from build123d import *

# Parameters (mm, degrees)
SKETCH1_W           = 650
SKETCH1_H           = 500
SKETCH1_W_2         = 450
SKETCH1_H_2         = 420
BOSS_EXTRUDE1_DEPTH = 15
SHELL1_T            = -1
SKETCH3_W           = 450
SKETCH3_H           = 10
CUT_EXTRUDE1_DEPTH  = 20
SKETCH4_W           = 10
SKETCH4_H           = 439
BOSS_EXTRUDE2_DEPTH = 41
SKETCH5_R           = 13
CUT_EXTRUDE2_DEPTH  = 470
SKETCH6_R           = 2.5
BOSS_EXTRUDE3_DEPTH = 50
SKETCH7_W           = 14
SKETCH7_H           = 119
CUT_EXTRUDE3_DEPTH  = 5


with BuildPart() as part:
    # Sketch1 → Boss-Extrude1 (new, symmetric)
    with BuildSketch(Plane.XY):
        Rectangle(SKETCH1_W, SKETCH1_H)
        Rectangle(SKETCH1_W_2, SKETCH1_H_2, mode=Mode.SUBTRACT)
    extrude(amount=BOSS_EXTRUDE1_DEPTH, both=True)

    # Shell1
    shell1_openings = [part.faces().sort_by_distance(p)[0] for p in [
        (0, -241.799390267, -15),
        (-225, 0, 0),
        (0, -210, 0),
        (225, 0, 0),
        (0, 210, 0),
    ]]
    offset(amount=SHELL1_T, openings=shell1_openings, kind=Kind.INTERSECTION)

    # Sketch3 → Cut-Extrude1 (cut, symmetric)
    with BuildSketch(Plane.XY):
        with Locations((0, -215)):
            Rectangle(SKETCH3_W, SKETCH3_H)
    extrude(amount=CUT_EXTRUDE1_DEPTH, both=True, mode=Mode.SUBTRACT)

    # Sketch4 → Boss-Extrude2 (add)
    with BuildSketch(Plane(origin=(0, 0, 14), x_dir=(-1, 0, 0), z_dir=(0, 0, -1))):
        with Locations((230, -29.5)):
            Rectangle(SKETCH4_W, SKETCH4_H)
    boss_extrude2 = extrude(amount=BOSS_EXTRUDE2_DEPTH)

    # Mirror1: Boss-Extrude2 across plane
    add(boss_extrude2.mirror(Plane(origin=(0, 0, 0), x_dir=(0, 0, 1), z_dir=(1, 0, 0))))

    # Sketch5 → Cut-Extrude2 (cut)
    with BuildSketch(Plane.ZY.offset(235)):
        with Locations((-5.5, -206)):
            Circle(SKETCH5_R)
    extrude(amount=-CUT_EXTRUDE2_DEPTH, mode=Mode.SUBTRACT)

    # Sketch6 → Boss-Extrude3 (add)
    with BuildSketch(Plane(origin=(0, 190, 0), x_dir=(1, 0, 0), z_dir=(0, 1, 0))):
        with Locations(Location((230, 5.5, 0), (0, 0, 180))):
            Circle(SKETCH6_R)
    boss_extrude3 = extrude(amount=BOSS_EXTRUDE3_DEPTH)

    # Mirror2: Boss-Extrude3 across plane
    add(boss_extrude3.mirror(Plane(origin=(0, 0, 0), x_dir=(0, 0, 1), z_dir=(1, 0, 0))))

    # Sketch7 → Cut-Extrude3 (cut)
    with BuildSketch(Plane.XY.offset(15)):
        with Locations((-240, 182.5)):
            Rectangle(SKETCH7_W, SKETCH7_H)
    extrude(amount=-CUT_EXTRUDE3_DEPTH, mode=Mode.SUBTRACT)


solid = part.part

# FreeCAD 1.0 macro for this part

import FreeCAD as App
import Part
import Sketcher
from FreeCAD import Vector


def faces_at(feature, points):
    """Names of the faces that lie closest to the given points."""
    faces = feature.Shape.Faces
    near = lambda p: min(range(len(faces)), key=lambda i: faces[i].distToShape(Part.Vertex(*p))[0])
    return sorted({f"Face{near(p) + 1}" for p in points})

doc = App.newDocument("Part")
body = doc.addObject("PartDesign::Body", "Body")

# Sketch on XY plane
sketch1 = body.newObject("Sketcher::SketchObject", "Sketch")
sketch1.AttachmentSupport = (doc.getObject("XY_Plane"), [""])
sketch1.MapMode = "FlatFace"
sketch1.addGeometry(Part.LineSegment(Vector(-325, 250, 0), Vector(-325, -250, 0)), False)
sketch1.addGeometry(Part.LineSegment(Vector(-325, -250, 0), Vector(325, -250, 0)), False)
sketch1.addGeometry(Part.LineSegment(Vector(325, -250, 0), Vector(325, 250, 0)), False)
sketch1.addGeometry(Part.LineSegment(Vector(325, 250, 0), Vector(-325, 250, 0)), False)
sketch1.addGeometry(Part.LineSegment(Vector(225, -210, 0), Vector(-225, -210, 0)), False)
sketch1.addGeometry(Part.LineSegment(Vector(-225, -210, 0), Vector(-225, 210, 0)), False)
sketch1.addGeometry(Part.LineSegment(Vector(-225, 210, 0), Vector(225, 210, 0)), False)
sketch1.addGeometry(Part.LineSegment(Vector(225, 210, 0), Vector(225, -210, 0)), False)
sketch1.addConstraint(Sketcher.Constraint("Coincident", 0, 2, 1, 1))
sketch1.addConstraint(Sketcher.Constraint("Coincident", 1, 2, 2, 1))
sketch1.addConstraint(Sketcher.Constraint("Coincident", 2, 2, 3, 1))
sketch1.addConstraint(Sketcher.Constraint("Coincident", 3, 2, 0, 1))
sketch1.addConstraint(Sketcher.Constraint("Coincident", 4, 2, 5, 1))
sketch1.addConstraint(Sketcher.Constraint("Coincident", 5, 2, 6, 1))
sketch1.addConstraint(Sketcher.Constraint("Coincident", 6, 2, 7, 1))
sketch1.addConstraint(Sketcher.Constraint("Coincident", 7, 2, 4, 1))
sketch1.addConstraint(Sketcher.Constraint("Vertical", 0))
sketch1.addConstraint(Sketcher.Constraint("Horizontal", 1))
sketch1.addConstraint(Sketcher.Constraint("Vertical", 2))
sketch1.addConstraint(Sketcher.Constraint("Horizontal", 3))
sketch1.addConstraint(Sketcher.Constraint("Horizontal", 4))
sketch1.addConstraint(Sketcher.Constraint("Vertical", 5))
sketch1.addConstraint(Sketcher.Constraint("Horizontal", 6))
sketch1.addConstraint(Sketcher.Constraint("Vertical", 7))
sketch1.addConstraint(Sketcher.Constraint("Symmetric", 0, 2, 2, 2, -1, 1))
sketch1.addConstraint(Sketcher.Constraint("Symmetric", 4, 2, 6, 2, -1, 1))
sketch1.addConstraint(Sketcher.Constraint("DistanceX", 1, 1, 1, 2, 650.0))
sketch1.addConstraint(Sketcher.Constraint("DistanceX", 4, 2, 4, 1, 450.0))
sketch1.addConstraint(Sketcher.Constraint("DistanceY", 0, 2, 0, 1, 500.0))
sketch1.addConstraint(Sketcher.Constraint("DistanceY", 5, 1, 5, 2, 420.0))
pad1 = body.newObject("PartDesign::Pad", "Pad")
pad1.Profile = sketch1
pad1.Length = 30
pad1.Midplane = True
doc.recompute()

thickness = body.newObject("PartDesign::Thickness", "Thickness")
thickness.Base = (pad1, faces_at(pad1, [
    (-260, 0, -15),
    (-225, 0, 0),
    (0, -210, 0),
    (225, 0, 0),
    (0, 210, 0),
]))
thickness.Value = 1
thickness.Reversed = True
thickness.Join = "Intersection"

# Sketch on XY plane
sketch2 = body.newObject("Sketcher::SketchObject", "Sketch001")
sketch2.AttachmentSupport = (doc.getObject("XY_Plane"), [""])
sketch2.MapMode = "FlatFace"
sketch2.addGeometry(Part.LineSegment(Vector(-225, -210, 0), Vector(-225, -220, 0)), False)
sketch2.addGeometry(Part.LineSegment(Vector(-225, -220, 0), Vector(225, -220, 0)), False)
sketch2.addGeometry(Part.LineSegment(Vector(225, -220, 0), Vector(225, -210, 0)), False)
sketch2.addGeometry(Part.LineSegment(Vector(225, -210, 0), Vector(-225, -210, 0)), False)
sketch2.addConstraint(Sketcher.Constraint("Coincident", 0, 2, 1, 1))
sketch2.addConstraint(Sketcher.Constraint("Coincident", 1, 2, 2, 1))
sketch2.addConstraint(Sketcher.Constraint("Coincident", 2, 2, 3, 1))
sketch2.addConstraint(Sketcher.Constraint("Coincident", 3, 2, 0, 1))
sketch2.addConstraint(Sketcher.Constraint("Vertical", 0))
sketch2.addConstraint(Sketcher.Constraint("Horizontal", 1))
sketch2.addConstraint(Sketcher.Constraint("Vertical", 2))
sketch2.addConstraint(Sketcher.Constraint("Horizontal", 3))
sketch2.addConstraint(Sketcher.Constraint("DistanceX", 1, 1, 1, 2, 450.0))
sketch2.addConstraint(Sketcher.Constraint("DistanceY", 0, 2, 0, 1, 10.0))
sketch2.addConstraint(Sketcher.Constraint("DistanceX", 0, 2, -1, 1, 225.0))
sketch2.addConstraint(Sketcher.Constraint("DistanceY", 0, 2, -1, 1, 220.0))
pocket1 = body.newObject("PartDesign::Pocket", "Pocket")
pocket1.Profile = sketch2
pocket1.Length = 40
pocket1.Midplane = True

# Sketch on XY plane
sketch3 = body.newObject("Sketcher::SketchObject", "Sketch002")
sketch3.AttachmentSupport = (doc.getObject("XY_Plane"), [""])
sketch3.MapMode = "FlatFace"
sketch3.AttachmentOffset = App.Placement(Vector(0, 0, 14), App.Rotation())
sketch3.addGeometry(Part.LineSegment(Vector(-225, 190, 0), Vector(-225, -249, 0)), False)
sketch3.addGeometry(Part.LineSegment(Vector(-225, -249, 0), Vector(-235, -249, 0)), False)
sketch3.addGeometry(Part.LineSegment(Vector(-235, -249, 0), Vector(-235, 190, 0)), False)
sketch3.addGeometry(Part.LineSegment(Vector(-235, 190, 0), Vector(-225, 190, 0)), False)
sketch3.addConstraint(Sketcher.Constraint("Coincident", 0, 2, 1, 1))
sketch3.addConstraint(Sketcher.Constraint("Coincident", 1, 2, 2, 1))
sketch3.addConstraint(Sketcher.Constraint("Coincident", 2, 2, 3, 1))
sketch3.addConstraint(Sketcher.Constraint("Coincident", 3, 2, 0, 1))
sketch3.addConstraint(Sketcher.Constraint("Vertical", 0))
sketch3.addConstraint(Sketcher.Constraint("Horizontal", 1))
sketch3.addConstraint(Sketcher.Constraint("Vertical", 2))
sketch3.addConstraint(Sketcher.Constraint("Horizontal", 3))
sketch3.addConstraint(Sketcher.Constraint("DistanceX", 1, 2, 1, 1, 10.0))
sketch3.addConstraint(Sketcher.Constraint("DistanceY", 0, 2, 0, 1, 439.0))
sketch3.addConstraint(Sketcher.Constraint("DistanceX", 0, 2, -1, 1, 225.0))
sketch3.addConstraint(Sketcher.Constraint("DistanceY", 0, 2, -1, 1, 249.0))
pad2 = body.newObject("PartDesign::Pad", "Pad001")
pad2.Profile = sketch3
pad2.Length = 41
pad2.Reversed = True
doc.recompute()

mirrored = body.newObject("PartDesign::Mirrored", "Mirrored")
mirrored.Originals = [pad2]
mirrored.MirrorPlane = (doc.getObject("YZ_Plane"), [""])
body.Tip = mirrored

# Sketch on YZ plane
sketch4 = body.newObject("Sketcher::SketchObject", "Sketch003")
sketch4.AttachmentSupport = (doc.getObject("YZ_Plane"), [""])
sketch4.MapMode = "FlatFace"
sketch4.AttachmentOffset = App.Placement(Vector(0, 0, -235), App.Rotation())
sketch4.addGeometry(Part.Circle(Vector(-206, -5.5, 0), Vector(0, 0, 1), 13), False)
sketch4.addConstraint(Sketcher.Constraint("Diameter", 0, 26.0))
sketch4.addConstraint(Sketcher.Constraint("DistanceX", 0, 3, -1, 1, 206.0))
sketch4.addConstraint(Sketcher.Constraint("DistanceY", 0, 3, -1, 1, 5.5))
pocket2 = body.newObject("PartDesign::Pocket", "Pocket001")
pocket2.Profile = sketch4
pocket2.Length = 470
pocket2.Reversed = True

# Sketch on XZ plane
sketch5 = body.newObject("Sketcher::SketchObject", "Sketch004")
sketch5.AttachmentSupport = (doc.getObject("XZ_Plane"), [""])
sketch5.MapMode = "FlatFace"
sketch5.AttachmentOffset = App.Placement(Vector(0, 0, -190), App.Rotation())
sketch5.addGeometry(Part.Circle(Vector(230, -5.5, 0), Vector(0, 0, 1), 2.5), False)
sketch5.addConstraint(Sketcher.Constraint("Diameter", 0, 5.0))
sketch5.addConstraint(Sketcher.Constraint("DistanceX", -1, 1, 0, 3, 230.0))
sketch5.addConstraint(Sketcher.Constraint("DistanceY", 0, 3, -1, 1, 5.5))
pad3 = body.newObject("PartDesign::Pad", "Pad002")
pad3.Profile = sketch5
pad3.Length = 50
pad3.Reversed = True
doc.recompute()

mirrored2 = body.newObject("PartDesign::Mirrored", "Mirrored001")
mirrored2.Originals = [pad3]
mirrored2.MirrorPlane = (doc.getObject("YZ_Plane"), [""])
body.Tip = mirrored2

# Sketch on XY plane
sketch6 = body.newObject("Sketcher::SketchObject", "Sketch005")
sketch6.AttachmentSupport = (doc.getObject("XY_Plane"), [""])
sketch6.MapMode = "FlatFace"
sketch6.AttachmentOffset = App.Placement(Vector(0, 0, 15), App.Rotation())
sketch6.addGeometry(Part.LineSegment(Vector(-247, 242, 0), Vector(-247, 123, 0)), False)
sketch6.addGeometry(Part.LineSegment(Vector(-247, 123, 0), Vector(-233, 123, 0)), False)
sketch6.addGeometry(Part.LineSegment(Vector(-233, 123, 0), Vector(-233, 242, 0)), False)
sketch6.addGeometry(Part.LineSegment(Vector(-233, 242, 0), Vector(-247, 242, 0)), False)
sketch6.addConstraint(Sketcher.Constraint("Coincident", 0, 2, 1, 1))
sketch6.addConstraint(Sketcher.Constraint("Coincident", 1, 2, 2, 1))
sketch6.addConstraint(Sketcher.Constraint("Coincident", 2, 2, 3, 1))
sketch6.addConstraint(Sketcher.Constraint("Coincident", 3, 2, 0, 1))
sketch6.addConstraint(Sketcher.Constraint("Vertical", 0))
sketch6.addConstraint(Sketcher.Constraint("Horizontal", 1))
sketch6.addConstraint(Sketcher.Constraint("Vertical", 2))
sketch6.addConstraint(Sketcher.Constraint("Horizontal", 3))
sketch6.addConstraint(Sketcher.Constraint("DistanceX", 1, 1, 1, 2, 14.0))
sketch6.addConstraint(Sketcher.Constraint("DistanceY", 0, 2, 0, 1, 119.0))
sketch6.addConstraint(Sketcher.Constraint("DistanceX", 0, 2, -1, 1, 247.0))
sketch6.addConstraint(Sketcher.Constraint("DistanceY", -1, 1, 0, 2, 123.0))
pocket3 = body.newObject("PartDesign::Pocket", "Pocket002")
pocket3.Profile = sketch6
pocket3.Length = 5

doc.recompute()
